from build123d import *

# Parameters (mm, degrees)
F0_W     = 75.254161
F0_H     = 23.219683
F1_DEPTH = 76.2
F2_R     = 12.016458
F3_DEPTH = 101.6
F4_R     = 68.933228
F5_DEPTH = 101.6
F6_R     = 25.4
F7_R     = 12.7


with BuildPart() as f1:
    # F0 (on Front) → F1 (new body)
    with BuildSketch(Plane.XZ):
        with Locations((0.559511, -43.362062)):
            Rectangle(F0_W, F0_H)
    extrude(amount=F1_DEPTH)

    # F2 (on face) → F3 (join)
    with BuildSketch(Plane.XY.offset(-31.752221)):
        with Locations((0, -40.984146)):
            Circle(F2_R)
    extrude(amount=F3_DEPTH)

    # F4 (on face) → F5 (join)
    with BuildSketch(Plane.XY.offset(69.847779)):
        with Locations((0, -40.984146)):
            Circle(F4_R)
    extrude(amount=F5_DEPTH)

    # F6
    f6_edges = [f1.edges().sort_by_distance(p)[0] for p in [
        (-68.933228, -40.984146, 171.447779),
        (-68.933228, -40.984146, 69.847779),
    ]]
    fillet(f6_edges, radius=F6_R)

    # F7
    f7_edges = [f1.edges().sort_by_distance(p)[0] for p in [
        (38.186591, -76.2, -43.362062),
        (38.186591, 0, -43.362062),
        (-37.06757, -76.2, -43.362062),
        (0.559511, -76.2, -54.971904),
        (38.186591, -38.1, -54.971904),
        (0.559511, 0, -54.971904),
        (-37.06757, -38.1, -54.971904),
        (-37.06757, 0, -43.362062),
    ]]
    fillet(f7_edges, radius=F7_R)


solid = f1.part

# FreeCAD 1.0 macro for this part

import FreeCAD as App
import Part
import Sketcher
from FreeCAD import Vector
Q = App.Units.Quantity


def edges_at(feature, points):
    """Names of the edges that pass closest to the given points."""
    edges = feature.Shape.Edges
    near = lambda p: min(range(len(edges)), key=lambda i: edges[i].distToShape(Part.Vertex(*p))[0])
    return sorted({f"Edge{near(p) + 1}" for p in points})


def add_polygon(sketch, points):
    """Adds a closed chain of lines whose ends are joined by coincident constraints."""
    first, n = sketch.GeometryCount, len(points)
    for a, b in zip(points, points[1:] + points[:1]):
        sketch.addGeometry(Part.LineSegment(App.Vector(*a, 0), App.Vector(*b, 0)), False)
    for i in range(n):
        sketch.addConstraint(Sketcher.Constraint("Coincident", first + i, 2, first + (i + 1) % n, 1))

doc = App.newDocument("Part")
body = doc.addObject("PartDesign::Body", "Body")

# Sketch on XZ plane
sketch1 = body.newObject("Sketcher::SketchObject", "Sketch")
sketch1.AttachmentSupport = (doc.getObject("XZ_Plane"), [""])
sketch1.MapMode = "FlatFace"
add_polygon(sketch1, [(-37.067569, -31.75222), (-37.067569, -54.971904), (38.186591, -54.971904), (38.186591, -31.75222)])  # lines 0-3
sketch1.addConstraint(Sketcher.Constraint("Vertical", 0))
sketch1.addConstraint(Sketcher.Constraint("Horizontal", 1))
sketch1.addConstraint(Sketcher.Constraint("Vertical", 2))
sketch1.addConstraint(Sketcher.Constraint("Horizontal", 3))
sketch1.addConstraint(Sketcher.Constraint("DistanceX", 1, 1, 1, 2, 75.254161))
sketch1.addConstraint(Sketcher.Constraint("DistanceY", 0, 2, 0, 1, 23.219683))
sketch1.addConstraint(Sketcher.Constraint("DistanceX", 0, 2, -1, 1, 37.067569))
sketch1.addConstraint(Sketcher.Constraint("DistanceY", 2, 2, -1, 1, 31.75222))
pad1 = body.newObject("PartDesign::Pad", "Pad")
pad1.Profile = sketch1
pad1.Length = Q("3 in")

# Sketch on XY plane
sketch2 = body.newObject("Sketcher::SketchObject", "Sketch001")
sketch2.AttachmentSupport = (doc.getObject("XY_Plane"), [""])
sketch2.MapMode = "FlatFace"
sketch2.AttachmentOffset = App.Placement(Vector(0, 0, -31.752221), App.Rotation())
sketch2.addGeometry(Part.Circle(Vector(0, -40.984146, 0), Vector(0, 0, 1), 12.016458), False)
sketch2.addConstraint(Sketcher.Constraint("PointOnObject", 0, 3, -2))
sketch2.addConstraint(Sketcher.Constraint("Diameter", 0, 24.032916))
sketch2.addConstraint(Sketcher.Constraint("DistanceY", 0, 3, -1, 1, 40.984146))
pad2 = body.newObject("PartDesign::Pad", "Pad001")
pad2.Profile = sketch2
pad2.Length = Q("4 in")

# Sketch on XY plane
sketch3 = body.newObject("Sketcher::SketchObject", "Sketch002")
sketch3.AttachmentSupport = (doc.getObject("XY_Plane"), [""])
sketch3.MapMode = "FlatFace"
sketch3.AttachmentOffset = App.Placement(Vector(0, 0, 69.847779), App.Rotation())
sketch3.addGeometry(Part.Circle(Vector(0, -40.984146, 0), Vector(0, 0, 1), 68.933228), False)
sketch3.addConstraint(Sketcher.Constraint("PointOnObject", 0, 3, -2))
sketch3.addConstraint(Sketcher.Constraint("Diameter", 0, 137.866456))
sketch3.addConstraint(Sketcher.Constraint("DistanceY", 0, 3, -1, 1, 40.984146))
pad3 = body.newObject("PartDesign::Pad", "Pad002")
pad3.Profile = sketch3
pad3.Length = Q("4 in")
doc.recompute()

fillet = body.newObject("PartDesign::Fillet", "Fillet")
fillet.Base = (pad3, edges_at(pad3, [(-68.933, -40.984, 171.448), (-68.933, -40.984, 69.848)]))
fillet.Radius = Q("1 in")
doc.recompute()

fillet2 = body.newObject("PartDesign::Fillet", "Fillet001")
fillet2.Base = (fillet, edges_at(fillet, [
    (38.187, -76.2, -43.362),
    (38.187, 0, -43.362),
    (-37.068, -76.2, -43.362),
    (0.56, -76.2, -54.972),
    (38.187, -38.1, -54.972),
    (0.56, 0, -54.972),
    (-37.068, -38.1, -54.972),
    (-37.068, 0, -43.362),
]))
fillet2.Radius = Q("0.5 in")

doc.recompute()
